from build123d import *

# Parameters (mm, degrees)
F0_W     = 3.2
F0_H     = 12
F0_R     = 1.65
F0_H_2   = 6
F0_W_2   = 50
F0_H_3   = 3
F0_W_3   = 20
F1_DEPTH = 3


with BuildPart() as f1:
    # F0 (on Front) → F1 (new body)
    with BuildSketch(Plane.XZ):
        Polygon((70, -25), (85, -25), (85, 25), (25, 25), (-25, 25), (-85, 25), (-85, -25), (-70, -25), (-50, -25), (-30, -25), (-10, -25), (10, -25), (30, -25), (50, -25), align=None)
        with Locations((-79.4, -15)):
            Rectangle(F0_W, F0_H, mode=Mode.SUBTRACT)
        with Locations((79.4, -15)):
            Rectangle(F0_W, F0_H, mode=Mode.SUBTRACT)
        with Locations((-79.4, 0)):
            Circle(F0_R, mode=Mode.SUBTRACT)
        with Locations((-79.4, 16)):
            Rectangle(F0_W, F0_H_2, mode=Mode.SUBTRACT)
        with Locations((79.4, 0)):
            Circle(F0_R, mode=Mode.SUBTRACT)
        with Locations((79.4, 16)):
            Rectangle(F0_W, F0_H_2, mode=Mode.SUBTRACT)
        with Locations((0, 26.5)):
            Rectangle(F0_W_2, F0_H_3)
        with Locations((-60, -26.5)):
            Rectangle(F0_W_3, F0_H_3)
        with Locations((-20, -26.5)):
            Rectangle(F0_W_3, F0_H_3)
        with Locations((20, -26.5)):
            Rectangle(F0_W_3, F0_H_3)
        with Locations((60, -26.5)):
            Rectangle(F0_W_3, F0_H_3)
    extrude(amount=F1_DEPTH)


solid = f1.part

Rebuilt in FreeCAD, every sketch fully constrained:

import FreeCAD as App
import Part
import Sketcher


def add_polygon(sketch, points):
    """Adds a closed chain of lines whose ends are joined by coincident constraints."""
    first, n = sketch.GeometryCount, len(points)
    for a, b in zip(points, points[1:] + points[:1]):
        sketch.addGeometry(Part.LineSegment(App.Vector(*a, 0), App.Vector(*b, 0)), False)
    for i in range(n):
        sketch.addConstraint(Sketcher.Constraint("Coincident", first + i, 2, first + (i + 1) % n, 1))

doc = App.newDocument("Part")
body = doc.addObject("PartDesign::Body", "Body")

sketch1 = body.newObject("Sketcher::SketchObject", "Sketch")
sketch1.AttachmentSupport = (doc.getObject("XZ_Plane"), [""])
sketch1.MapMode = "FlatFace"
add_polygon(sketch1, [(85, -25), (85, 25), (25, 25), (25, 28), (-25, 28), (-25, 25), (-85, 25), (-85, -25), (-70, -25), (-70, -28), (-50, -28), (-50, -25), (-30, -25), (-30, -28), (-10, -28), (-10, -25), (10, -25), (10, -28), (30, -28), (30, -25), (50, -25), (50, -28), (70, -28), (70, -25)])
add_polygon(sketch1, [(-77.8, -21), (-81, -21), (-81, -9), (-77.8, -9)])
add_polygon(sketch1, [(81, -21), (77.8, -21), (77.8, -9), (81, -9)])
sketch1.addGeometry(Part.Circle(App.Vector(-79.4, 0, 0), App.Vector(0, 0, 1), 1.65), False)
add_polygon(sketch1, [(-77.8, 13), (-81, 13), (-81, 19), (-77.8, 19)])
sketch1.addGeometry(Part.Circle(App.Vector(79.4, 0, 0), App.Vector(0, 0, 1), 1.65), False)
add_polygon(sketch1, [(81, 13), (77.8, 13), (77.8, 19), (81, 19)])
sketch1.addConstraint([
    Sketcher.Constraint("Vertical", 0),
    Sketcher.Constraint("Horizontal", 1),
    Sketcher.Constraint("Vertical", 2),
    Sketcher.Constraint("Horizontal", 3),
    Sketcher.Constraint("Vertical", 4),
    Sketcher.Constraint("Horizontal", 5),
    Sketcher.Constraint("Vertical", 6),
    Sketcher.Constraint("Horizontal", 7),
    Sketcher.Constraint("Vertical", 8),
    Sketcher.Constraint("Horizontal", 9),
    Sketcher.Constraint("Vertical", 10),
    Sketcher.Constraint("Horizontal", 11),
    Sketcher.Constraint("Vertical", 12),
    Sketcher.Constraint("Horizontal", 13),
    Sketcher.Constraint("Vertical", 14),
    Sketcher.Constraint("Horizontal", 15),
    Sketcher.Constraint("Vertical", 16),
    Sketcher.Constraint("Horizontal", 17),
    Sketcher.Constraint("Vertical", 18),
    Sketcher.Constraint("Horizontal", 19),
    Sketcher.Constraint("Vertical", 20),
    Sketcher.Constraint("Horizontal", 21),
    Sketcher.Constraint("Vertical", 22),
    Sketcher.Constraint("Horizontal", 23),
    Sketcher.Constraint("Horizontal", 24),
    Sketcher.Constraint("Vertical", 25),
    Sketcher.Constraint("Horizontal", 26),
    Sketcher.Constraint("Vertical", 27),
    Sketcher.Constraint("Horizontal", 28),
    Sketcher.Constraint("Vertical", 29),
    Sketcher.Constraint("Horizontal", 30),
    Sketcher.Constraint("Vertical", 31),
    Sketcher.Constraint("Horizontal", 33),
    Sketcher.Constraint("Vertical", 34),
    Sketcher.Constraint("Horizontal", 35),
    Sketcher.Constraint("Vertical", 36),
    Sketcher.Constraint("Horizontal", 38),
    Sketcher.Constraint("Vertical", 39),
    Sketcher.Constraint("Horizontal", 40),
    Sketcher.Constraint("Vertical", 41),
    Sketcher.Constraint("Equal", 32, 37),
    Sketcher.Constraint("Symmetric", 32, 3, 37, 3, -1, 1),
    Sketcher.Constraint("Symmetric", 0, 2, 6, 2, -1, 1),
    Sketcher.Constraint("Symmetric", 1, 2, 4, 2, -2),
    Sketcher.Constraint("Symmetric", 13, 2, 16, 2, -2),
    Sketcher.Constraint("Symmetric", 11, 2, 18, 2, -2),
    Sketcher.Constraint("Symmetric", 9, 2, 20, 2, -2),
    Sketcher.Constraint("Symmetric", 7, 2, 22, 2, -2),
    Sketcher.Constraint("Symmetric", 27, 2, 28, 2, -2),
    Sketcher.Constraint("Symmetric", 25, 2, 30, 2, -2),
    Sketcher.Constraint("Symmetric", 36, 2, 38, 2, -2),
    Sketcher.Constraint("Symmetric", 34, 2, 40, 2, -2),
    Sketcher.Constraint("PointOnObject", 32, 3, -1),
    Sketcher.Constraint("Horizontal", 7, 2, 10, 2),
    Sketcher.Constraint("Horizontal", 9, 2, 12, 2),
    Sketcher.Constraint("Horizontal", 11, 2, 14, 2),
    Sketcher.Constraint("Vertical", 25, 2, 33, 2),
    Sketcher.Constraint("Vertical", 27, 2, 35, 2),
    Sketcher.Constraint("Equal", 9, 11),
    Sketcher.Constraint("Equal", 11, 13),
    Sketcher.Constraint("Equal", 13, 15),
    Sketcher.Constraint("Equal", 3, 0),
    Sketcher.Constraint("Equal", 4, 8),
    Sketcher.Constraint("Diameter", 32, 3.3),
    Sketcher.Constraint("DistanceX", 1, 2, 1, 1, 60.0),
    Sketcher.Constraint("DistanceX", 3, 2, 3, 1, 50.0),
    Sketcher.Constraint("DistanceX", 7, 1, 7, 2, 15.0),
    Sketcher.Constraint("DistanceY", 2, 1, 2, 2, 3.0),
    Sketcher.Constraint("DistanceY", 25, 1, 25, 2, 12.0),
    Sketcher.Constraint("DistanceY", 34, 1, 34, 2, 6.0),
    Sketcher.Constraint("DistanceX", 24, 2, 24, 1, 3.2),
    Sketcher.Constraint("DistanceX", 24, 2, -1, 1, 81.0),
    Sketcher.Constraint("DistanceY", 24, 2, -1, 1, 21.0),
    Sketcher.Constraint("DistanceY", -1, 1, 33, 2, 13.0),
    Sketcher.Constraint("DistanceX", 32, 3, -1, 1, 79.4),
])
pad1 = body.newObject("PartDesign::Pad", "Pad")
pad1.Profile = sketch1
pad1.Length = 3

doc.recompute()
